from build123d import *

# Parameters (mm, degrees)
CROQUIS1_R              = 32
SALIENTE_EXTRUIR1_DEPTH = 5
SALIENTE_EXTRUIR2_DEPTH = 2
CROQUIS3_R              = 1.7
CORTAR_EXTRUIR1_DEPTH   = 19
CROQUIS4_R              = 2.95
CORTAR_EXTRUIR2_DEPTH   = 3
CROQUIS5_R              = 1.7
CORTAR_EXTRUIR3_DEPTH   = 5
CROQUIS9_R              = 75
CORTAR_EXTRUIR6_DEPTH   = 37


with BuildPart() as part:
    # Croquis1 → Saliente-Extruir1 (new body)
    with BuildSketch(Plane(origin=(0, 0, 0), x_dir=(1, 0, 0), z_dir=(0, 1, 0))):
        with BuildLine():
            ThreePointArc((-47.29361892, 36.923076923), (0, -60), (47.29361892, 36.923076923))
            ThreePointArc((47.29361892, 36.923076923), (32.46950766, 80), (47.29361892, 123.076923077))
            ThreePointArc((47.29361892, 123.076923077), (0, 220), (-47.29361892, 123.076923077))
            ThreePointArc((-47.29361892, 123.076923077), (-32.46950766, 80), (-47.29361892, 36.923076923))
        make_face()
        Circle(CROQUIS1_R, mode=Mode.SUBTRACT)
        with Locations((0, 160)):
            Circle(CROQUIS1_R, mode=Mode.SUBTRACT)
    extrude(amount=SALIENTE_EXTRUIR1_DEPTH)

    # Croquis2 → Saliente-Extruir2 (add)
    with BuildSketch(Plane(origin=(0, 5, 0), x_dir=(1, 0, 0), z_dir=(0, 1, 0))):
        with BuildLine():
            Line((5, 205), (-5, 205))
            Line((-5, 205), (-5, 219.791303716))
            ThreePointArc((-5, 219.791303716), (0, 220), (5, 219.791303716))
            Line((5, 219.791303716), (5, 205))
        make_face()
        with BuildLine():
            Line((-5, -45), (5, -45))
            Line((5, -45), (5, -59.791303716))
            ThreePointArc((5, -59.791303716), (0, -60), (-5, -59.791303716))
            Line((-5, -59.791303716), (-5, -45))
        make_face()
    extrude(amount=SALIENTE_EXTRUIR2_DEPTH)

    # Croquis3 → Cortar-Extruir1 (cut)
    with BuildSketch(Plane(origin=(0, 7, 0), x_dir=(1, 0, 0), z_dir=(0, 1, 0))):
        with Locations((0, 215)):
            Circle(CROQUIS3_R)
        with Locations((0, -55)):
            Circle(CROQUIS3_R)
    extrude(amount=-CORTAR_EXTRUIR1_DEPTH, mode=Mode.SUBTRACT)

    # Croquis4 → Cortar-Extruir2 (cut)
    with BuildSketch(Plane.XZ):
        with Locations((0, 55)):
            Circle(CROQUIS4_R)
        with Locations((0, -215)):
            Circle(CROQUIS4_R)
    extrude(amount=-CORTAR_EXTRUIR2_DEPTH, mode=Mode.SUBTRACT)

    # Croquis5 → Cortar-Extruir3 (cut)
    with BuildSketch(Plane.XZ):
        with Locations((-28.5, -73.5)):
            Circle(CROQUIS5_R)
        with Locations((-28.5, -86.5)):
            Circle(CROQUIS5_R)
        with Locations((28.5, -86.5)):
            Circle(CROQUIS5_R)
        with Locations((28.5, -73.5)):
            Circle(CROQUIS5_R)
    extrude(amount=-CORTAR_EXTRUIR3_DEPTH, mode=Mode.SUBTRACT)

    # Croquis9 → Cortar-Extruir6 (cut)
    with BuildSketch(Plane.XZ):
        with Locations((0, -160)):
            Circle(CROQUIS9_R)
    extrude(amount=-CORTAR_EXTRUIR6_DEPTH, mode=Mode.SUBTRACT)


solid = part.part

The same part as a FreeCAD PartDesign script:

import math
import FreeCAD as App
import Part
import Sketcher
from FreeCAD import Vector
Q = App.Units.Quantity

doc = App.newDocument("Part")
body = doc.addObject("PartDesign::Body", "Body")

# Sketch on XZ plane
sketch1 = body.newObject("Sketcher::SketchObject", "Sketch")
sketch1.AttachmentSupport = (doc.getObject("XZ_Plane"), [""])
sketch1.MapMode = "FlatFace"
sketch1.addGeometry([
    Part.ArcOfCircle(Part.Circle(Vector(0, 0, 0), Vector(0, 0, 1), 60), math.radians(-38), math.radians(218)),  # 0
    Part.ArcOfCircle(Part.Circle(Vector(102, -80, 0), Vector(0, 0, 1), 70), math.radians(142), math.radians(218)),  # 1
    Part.ArcOfCircle(Part.Circle(Vector(0, -160, 0), Vector(0, 0, 1), 60), math.radians(142), math.radians(398)),  # 2
    Part.ArcOfCircle(Part.Circle(Vector(-102, -80, 0), Vector(0, 0, 1), 70), math.radians(-38), math.radians(38)),  # 3
    Part.Circle(Vector(0, 0, 0), Vector(0, 0, 1), 32),  # 4
    Part.Circle(Vector(0, -160, 0), Vector(0, 0, 1), 32),  # 5
], False)
sketch1.addConstraint([
    Sketcher.Constraint("Tangent", 0, 1, 1, 1),
    Sketcher.Constraint("Tangent", 1, 2, 2, 2),
    Sketcher.Constraint("Tangent", 2, 1, 3, 1),
    Sketcher.Constraint("Tangent", 3, 2, 0, 2),
    Sketcher.Constraint("Coincident", 0, 3, -1, 1),
    Sketcher.Constraint("Coincident", 4, 3, -1, 1),
    Sketcher.Constraint("Coincident", 5, 3, 2, 3),
    Sketcher.Constraint("Equal", 0, 2),
    Sketcher.Constraint("Equal", 1, 3),
    Sketcher.Constraint("Equal", 4, 5),
    Sketcher.Constraint("PointOnObject", 2, 3, -2),
    Sketcher.Constraint("Diameter", 4, Q("64 mm")),
    Sketcher.Constraint("Radius", 0, Q("60 mm")),
    Sketcher.Constraint("Radius", 1, Q("70 mm")),
    Sketcher.Constraint("DistanceY", 1, 3, -1, 1, Q("80 mm")),
])
pad1 = body.newObject("PartDesign::Pad", "Pad")
pad1.Profile = sketch1
pad1.Length = 5
pad1.Reversed = True

# Sketch on XZ plane
sketch2 = body.newObject("Sketcher::SketchObject", "Sketch001")
sketch2.AttachmentSupport = (doc.getObject("XZ_Plane"), [""])
sketch2.MapMode = "FlatFace"
sketch2.AttachmentOffset = App.Placement(Vector(0, 0, -5), App.Rotation())
sketch2.addGeometry([
    Part.LineSegment(Vector(-5, -205, 0), Vector(5, -205, 0)),  # 0
    Part.LineSegment(Vector(5, -205, 0), Vector(5, -220, 0)),  # 1
    Part.ArcOfCircle(Part.Circle(Vector(0, -160, 0), Vector(0, 0, 1), 60), math.radians(-94.78), math.radians(-85.22)),  # 2
    Part.LineSegment(Vector(-5, -220, 0), Vector(-5, -205, 0)),  # 3
    Part.LineSegment(Vector(5, 45, 0), Vector(-5, 45, 0)),  # 4
    Part.LineSegment(Vector(-5, 45, 0), Vector(-5, 60, 0)),  # 5
    Part.ArcOfCircle(Part.Circle(Vector(0, 0, 0), Vector(0, 0, 1), 60), math.radians(85.22), math.radians(94.78)),  # 6
    Part.LineSegment(Vector(5, 60, 0), Vector(5, 45, 0)),  # 7
], False)
sketch2.addConstraint([
    Sketcher.Constraint("Coincident", 0, 2, 1, 1),
    Sketcher.Constraint("Coincident", 1, 2, 2, 2),
    Sketcher.Constraint("Coincident", 2, 1, 3, 1),
    Sketcher.Constraint("Coincident", 3, 2, 0, 1),
    Sketcher.Constraint("Coincident", 4, 2, 5, 1),
    Sketcher.Constraint("Coincident", 5, 2, 6, 2),
    Sketcher.Constraint("Coincident", 6, 1, 7, 1),
    Sketcher.Constraint("Coincident", 7, 2, 4, 1),
    Sketcher.Constraint("Horizontal", 0),
    Sketcher.Constraint("Vertical", 1),
    Sketcher.Constraint("Vertical", 3),
    Sketcher.Constraint("Horizontal", 4),
    Sketcher.Constraint("Vertical", 5),
    Sketcher.Constraint("Vertical", 7),
    Sketcher.Constraint("Coincident", 6, 3, -1, 1),
    Sketcher.Constraint("Equal", 2, 6),
    Sketcher.Constraint("Symmetric", 1, 2, 2, 1, -2),
    Sketcher.Constraint("Horizontal", 5, 2, 6, 1),
    Sketcher.Constraint("Vertical", 3, 2, 4, 2),
    Sketcher.Constraint("Equal", 3, 5),
    Sketcher.Constraint("Radius", 2, Q("60 mm")),
    Sketcher.Constraint("DistanceX", 0, 1, 0, 2, Q("10 mm")),
    Sketcher.Constraint("DistanceY", 2, 3, -1, 1, Q("160 mm")),
    Sketcher.Constraint("DistanceY", 0, 2, -1, 1, Q("205 mm")),
])
pad2 = body.newObject("PartDesign::Pad", "Pad001")
pad2.Profile = sketch2
pad2.Length = 2
pad2.Reversed = True

# Sketch on XZ plane
sketch3 = body.newObject("Sketcher::SketchObject", "Sketch002")
sketch3.AttachmentSupport = (doc.getObject("XZ_Plane"), [""])
sketch3.MapMode = "FlatFace"
sketch3.AttachmentOffset = App.Placement(Vector(0, 0, -7), App.Rotation())
sketch3.addGeometry([
    Part.Circle(Vector(0, -215, 0), Vector(0, 0, 1), 1.7),
    Part.Circle(Vector(0, 55, 0), Vector(0, 0, 1), 1.7),
], False)
sketch3.addConstraint([
    Sketcher.Constraint("Equal", 0, 1),
    Sketcher.Constraint("PointOnObject", 0, 3, -2),
    Sketcher.Constraint("PointOnObject", 1, 3, -2),
    Sketcher.Constraint("Diameter", 0, Q("3.4 mm")),
    Sketcher.Constraint("DistanceY", 0, 3, -1, 1, Q("215 mm")),
    Sketcher.Constraint("DistanceY", -1, 1, 1, 3, Q("55 mm")),
])
pocket1 = body.newObject("PartDesign::Pocket", "Pocket")
pocket1.Profile = sketch3
pocket1.Length = 19
pocket1.Reversed = True

# Sketch on XZ plane
sketch4 = body.newObject("Sketcher::SketchObject", "Sketch003")
sketch4.AttachmentSupport = (doc.getObject("XZ_Plane"), [""])
sketch4.MapMode = "FlatFace"
sketch4.addGeometry([
    Part.Circle(Vector(0, 55, 0), Vector(0, 0, 1), 3),
    Part.Circle(Vector(0, -215, 0), Vector(0, 0, 1), 3),
], False)
sketch4.addConstraint([
    Sketcher.Constraint("Equal", 0, 1),
    Sketcher.Constraint("PointOnObject", 0, 3, -2),
    Sketcher.Constraint("PointOnObject", 1, 3, -2),
    Sketcher.Constraint("Diameter", 0, Q("5.9 mm")),
    Sketcher.Constraint("DistanceY", -1, 1, 0, 3, Q("55 mm")),
    Sketcher.Constraint("DistanceY", 1, 3, -1, 1, Q("215 mm")),
])
pocket2 = body.newObject("PartDesign::Pocket", "Pocket001")
pocket2.Profile = sketch4
pocket2.Length = 3

# Sketch on XZ plane
sketch5 = body.newObject("Sketcher::SketchObject", "Sketch004")
sketch5.AttachmentSupport = (doc.getObject("XZ_Plane"), [""])
sketch5.MapMode = "FlatFace"
sketch5.addGeometry([
    Part.Circle(Vector(-28.5, -73.5, 0), Vector(0, 0, 1), 1.7),
    Part.Circle(Vector(-28.5, -86.5, 0), Vector(0, 0, 1), 1.7),
    Part.Circle(Vector(28.5, -86.5, 0), Vector(0, 0, 1), 1.7),
    Part.Circle(Vector(28.5, -73.5, 0), Vector(0, 0, 1), 1.7),
], False)
sketch5.addConstraint([
    Sketcher.Constraint("Equal", 0, 1),
    Sketcher.Constraint("Equal", 1, 2),
    Sketcher.Constraint("Equal", 2, 3),
    Sketcher.Constraint("Symmetric", 1, 3, 2, 3, -2),
    Sketcher.Constraint("Symmetric", 0, 3, 3, 3, -2),
    Sketcher.Constraint("Vertical", 0, 3, 1, 3),
    Sketcher.Constraint("Diameter", 0, Q("3.4 mm")),
    Sketcher.Constraint("DistanceY", 1, 3, 0, 3, Q("13 mm")),
    Sketcher.Constraint("DistanceX", 1, 3, 2, 3, Q("57 mm")),
    Sketcher.Constraint("DistanceY", 0, 3, -1, 1, Q("73.5 mm")),
])
pocket3 = body.newObject("PartDesign::Pocket", "Pocket002")
pocket3.Profile = sketch5
pocket3.Length = 5

# Sketch on XZ plane
sketch6 = body.newObject("Sketcher::SketchObject", "Sketch005")
sketch6.AttachmentSupport = (doc.getObject("XZ_Plane"), [""])
sketch6.MapMode = "FlatFace"
sketch6.addGeometry(Part.Circle(Vector(0, -160, 0), Vector(0, 0, 1), 75), False)
sketch6.addConstraint([
    Sketcher.Constraint("PointOnObject", 0, 3, -2),
    Sketcher.Constraint("Diameter", 0, Q("150 mm")),
    Sketcher.Constraint("DistanceY", 0, 3, -1, 1, Q("160 mm")),
])
pocket4 = body.newObject("PartDesign::Pocket", "Pocket003")
pocket4.Profile = sketch6
pocket4.Length = 37

doc.recompute()
